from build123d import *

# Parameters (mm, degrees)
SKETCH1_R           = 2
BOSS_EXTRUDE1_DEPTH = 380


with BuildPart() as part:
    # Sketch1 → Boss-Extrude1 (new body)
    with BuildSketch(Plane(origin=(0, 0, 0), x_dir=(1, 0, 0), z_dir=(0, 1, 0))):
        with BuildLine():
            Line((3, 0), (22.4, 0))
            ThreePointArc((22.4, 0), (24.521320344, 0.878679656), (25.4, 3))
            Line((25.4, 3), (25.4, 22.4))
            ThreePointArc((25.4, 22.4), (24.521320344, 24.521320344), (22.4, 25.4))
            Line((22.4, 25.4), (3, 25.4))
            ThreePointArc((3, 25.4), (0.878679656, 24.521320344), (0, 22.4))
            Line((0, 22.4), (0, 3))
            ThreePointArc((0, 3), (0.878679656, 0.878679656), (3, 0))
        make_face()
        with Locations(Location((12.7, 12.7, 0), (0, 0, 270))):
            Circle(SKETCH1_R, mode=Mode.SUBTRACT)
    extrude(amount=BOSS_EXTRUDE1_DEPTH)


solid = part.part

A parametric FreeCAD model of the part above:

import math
import FreeCAD as App
import Part
import Sketcher
from FreeCAD import Vector
Q = App.Units.Quantity

doc = App.newDocument("Part")
body = doc.addObject("PartDesign::Body", "Body")

sketch1 = body.newObject("Sketcher::SketchObject", "Sketch")
sketch1.AttachmentSupport = (doc.getObject("XZ_Plane"), [""])
sketch1.MapMode = "FlatFace"
sketch1.addGeometry(Part.LineSegment(Vector(3, 0, 0), Vector(22.4, 0, 0)), False)
sketch1.addGeometry(Part.ArcOfCircle(Part.Circle(Vector(22.4, -3, 0), Vector(0, 0, 1), 3), math.radians(0), math.radians(90)), False)
sketch1.addGeometry(Part.LineSegment(Vector(25.4, -3, 0), Vector(25.4, -22.4, 0)), False)
sketch1.addGeometry(Part.ArcOfCircle(Part.Circle(Vector(22.4, -22.4, 0), Vector(0, 0, 1), 3), math.radians(-90), math.radians(0)), False)
sketch1.addGeometry(Part.LineSegment(Vector(22.4, -25.4, 0), Vector(3, -25.4, 0)), False)
sketch1.addGeometry(Part.ArcOfCircle(Part.Circle(Vector(3, -22.4, 0), Vector(0, 0, 1), 3), math.radians(180), math.radians(270)), False)
sketch1.addGeometry(Part.LineSegment(Vector(0, -22.4, 0), Vector(0, -3, 0)), False)
sketch1.addGeometry(Part.ArcOfCircle(Part.Circle(Vector(3, -3, 0), Vector(0, 0, 1), 3), math.radians(90), math.radians(180)), False)
sketch1.addGeometry(Part.Circle(Vector(12.7, -12.7, 0), Vector(0, 0, 1), 2), False)
sketch1.addConstraint(Sketcher.Constraint("Tangent", 0, 2, 1, 2))
sketch1.addConstraint(Sketcher.Constraint("Tangent", 1, 1, 2, 1))
sketch1.addConstraint(Sketcher.Constraint("Tangent", 2, 2, 3, 2))
sketch1.addConstraint(Sketcher.Constraint("Tangent", 3, 1, 4, 1))
sketch1.addConstraint(Sketcher.Constraint("Tangent", 4, 2, 5, 2))
sketch1.addConstraint(Sketcher.Constraint("Tangent", 5, 1, 6, 1))
sketch1.addConstraint(Sketcher.Constraint("Tangent", 6, 2, 7, 2))
sketch1.addConstraint(Sketcher.Constraint("Tangent", 7, 1, 0, 1))
sketch1.addConstraint(Sketcher.Constraint("Horizontal", 0))
sketch1.addConstraint(Sketcher.Constraint("Vertical", 2))
sketch1.addConstraint(Sketcher.Constraint("Horizontal", 4))
sketch1.addConstraint(Sketcher.Constraint("Vertical", 6))
sketch1.addConstraint(Sketcher.Constraint("Equal", 1, 3))
sketch1.addConstraint(Sketcher.Constraint("Equal", 3, 5))
sketch1.addConstraint(Sketcher.Constraint("Equal", 5, 7))
sketch1.addConstraint(Sketcher.Constraint("PointOnObject", 0, 2, -1))
sketch1.addConstraint(Sketcher.Constraint("PointOnObject", 5, 1, -2))
sketch1.addConstraint(Sketcher.Constraint("Equal", 4, 2))
sketch1.addConstraint(Sketcher.Constraint("Diameter", 8, Q("4 mm")))
sketch1.addConstraint(Sketcher.Constraint("Radius", 1, Q("3 mm")))
sketch1.addConstraint(Sketcher.Constraint("DistanceX", 0, 1, 0, 2, Q("19.4 mm")))
sketch1.addConstraint(Sketcher.Constraint("DistanceX", -1, 1, 8, 3, Q("12.7 mm")))
sketch1.addConstraint(Sketcher.Constraint("DistanceY", 8, 3, -1, 1, Q("12.7 mm")))
pad1 = body.newObject("PartDesign::Pad", "Pad")
pad1.Profile = sketch1
pad1.Length = 380
pad1.Reversed = True

doc.recompute()
